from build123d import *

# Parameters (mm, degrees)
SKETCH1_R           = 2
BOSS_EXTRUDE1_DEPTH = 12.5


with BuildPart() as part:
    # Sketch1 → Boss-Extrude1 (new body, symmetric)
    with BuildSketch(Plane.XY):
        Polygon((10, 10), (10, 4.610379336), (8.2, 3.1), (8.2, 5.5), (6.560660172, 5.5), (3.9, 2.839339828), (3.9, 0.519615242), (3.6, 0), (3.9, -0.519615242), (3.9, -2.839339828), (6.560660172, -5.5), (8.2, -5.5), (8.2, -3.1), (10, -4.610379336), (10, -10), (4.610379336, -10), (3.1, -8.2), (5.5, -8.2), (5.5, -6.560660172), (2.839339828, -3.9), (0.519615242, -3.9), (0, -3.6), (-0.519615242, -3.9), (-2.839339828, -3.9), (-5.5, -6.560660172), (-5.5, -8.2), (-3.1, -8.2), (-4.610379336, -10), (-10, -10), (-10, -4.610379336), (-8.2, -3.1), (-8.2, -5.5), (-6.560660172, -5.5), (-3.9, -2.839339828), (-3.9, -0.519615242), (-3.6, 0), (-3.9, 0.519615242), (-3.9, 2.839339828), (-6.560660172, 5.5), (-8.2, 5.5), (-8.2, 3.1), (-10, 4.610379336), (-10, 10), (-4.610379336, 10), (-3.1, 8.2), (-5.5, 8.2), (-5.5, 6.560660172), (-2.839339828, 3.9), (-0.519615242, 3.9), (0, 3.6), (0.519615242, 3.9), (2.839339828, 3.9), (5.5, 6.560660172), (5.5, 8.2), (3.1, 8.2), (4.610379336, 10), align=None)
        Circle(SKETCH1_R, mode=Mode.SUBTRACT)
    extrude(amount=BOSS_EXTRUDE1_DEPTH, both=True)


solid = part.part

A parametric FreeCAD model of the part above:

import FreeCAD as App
import Part
import Sketcher

V = App.Vector
Q = App.Units.Quantity

doc = App.newDocument("Part")
body = doc.addObject("PartDesign::Body", "Body")

# Sketch on XY plane
sketch1 = doc.addObject("Sketcher::SketchObject", "Sketch")
body.addObject(sketch1)
sketch1.AttachmentSupport = (doc.XY_Plane, [""])
sketch1.MapMode = "FlatFace"
sketch1.addGeometry(Part.LineSegment(V(10, 4.6, 0), V(10, 10, 0)), False)
sketch1.addGeometry(Part.LineSegment(V(10, 10, 0), V(4.6, 10, 0)), False)
sketch1.addGeometry(Part.LineSegment(V(4.6, 10, 0), V(3.1, 8.2, 0)), False)
sketch1.addGeometry(Part.LineSegment(V(3.1, 8.2, 0), V(5.5, 8.2, 0)), False)
sketch1.addGeometry(Part.LineSegment(V(5.5, 8.2, 0), V(5.5, 6.6, 0)), False)
sketch1.addGeometry(Part.LineSegment(V(5.5, 6.6, 0), V(2.8, 3.9, 0)), False)
sketch1.addGeometry(Part.LineSegment(V(2.8, 3.9, 0), V(0.5, 3.9, 0)), False)
sketch1.addGeometry(Part.LineSegment(V(0.5, 3.9, 0), V(0, 3.6, 0)), False)
sketch1.addGeometry(Part.LineSegment(V(0, 3.6, 0), V(-0.5, 3.9, 0)), False)
sketch1.addGeometry(Part.LineSegment(V(-0.5, 3.9, 0), V(-2.8, 3.9, 0)), False)
sketch1.addGeometry(Part.LineSegment(V(-2.8, 3.9, 0), V(-5.5, 6.6, 0)), False)
sketch1.addGeometry(Part.LineSegment(V(-5.5, 6.6, 0), V(-5.5, 8.2, 0)), False)
sketch1.addGeometry(Part.LineSegment(V(-5.5, 8.2, 0), V(-3.1, 8.2, 0)), False)
sketch1.addGeometry(Part.LineSegment(V(-3.1, 8.2, 0), V(-4.6, 10, 0)), False)
sketch1.addGeometry(Part.LineSegment(V(-4.6, 10, 0), V(-10, 10, 0)), False)
sketch1.addGeometry(Part.LineSegment(V(-10, 10, 0), V(-10, 4.6, 0)), False)
sketch1.addGeometry(Part.LineSegment(V(-10, 4.6, 0), V(-8.2, 3.1, 0)), False)
sketch1.addGeometry(Part.LineSegment(V(-8.2, 3.1, 0), V(-8.2, 5.5, 0)), False)
sketch1.addGeometry(Part.LineSegment(V(-8.2, 5.5, 0), V(-6.6, 5.5, 0)), False)
sketch1.addGeometry(Part.LineSegment(V(-6.6, 5.5, 0), V(-3.9, 2.8, 0)), False)
sketch1.addGeometry(Part.LineSegment(V(-3.9, 2.8, 0), V(-3.9, 0.5, 0)), False)
sketch1.addGeometry(Part.LineSegment(V(-3.9, 0.5, 0), V(-3.6, 0, 0)), False)
sketch1.addGeometry(Part.LineSegment(V(-3.6, 0, 0), V(-3.9, -0.5, 0)), False)
sketch1.addGeometry(Part.LineSegment(V(-3.9, -0.5, 0), V(-3.9, -2.8, 0)), False)
sketch1.addGeometry(Part.LineSegment(V(-3.9, -2.8, 0), V(-6.6, -5.5, 0)), False)
sketch1.addGeometry(Part.LineSegment(V(-6.6, -5.5, 0), V(-8.2, -5.5, 0)), False)
sketch1.addGeometry(Part.LineSegment(V(-8.2, -5.5, 0), V(-8.2, -3.1, 0)), False)
sketch1.addGeometry(Part.LineSegment(V(-8.2, -3.1, 0), V(-10, -4.6, 0)), False)
sketch1.addGeometry(Part.LineSegment(V(-10, -4.6, 0), V(-10, -10, 0)), False)
sketch1.addGeometry(Part.LineSegment(V(-10, -10, 0), V(-4.6, -10, 0)), False)
sketch1.addGeometry(Part.LineSegment(V(-4.6, -10, 0), V(-3.1, -8.2, 0)), False)
sketch1.addGeometry(Part.LineSegment(V(-3.1, -8.2, 0), V(-5.5, -8.2, 0)), False)
sketch1.addGeometry(Part.LineSegment(V(-5.5, -8.2, 0), V(-5.5, -6.6, 0)), False)
sketch1.addGeometry(Part.LineSegment(V(-5.5, -6.6, 0), V(-2.8, -3.9, 0)), False)
sketch1.addGeometry(Part.LineSegment(V(-2.8, -3.9, 0), V(-0.5, -3.9, 0)), False)
sketch1.addGeometry(Part.LineSegment(V(-0.5, -3.9, 0), V(0, -3.6, 0)), False)
sketch1.addGeometry(Part.LineSegment(V(0, -3.6, 0), V(0.5, -3.9, 0)), False)
sketch1.addGeometry(Part.LineSegment(V(0.5, -3.9, 0), V(2.8, -3.9, 0)), False)
sketch1.addGeometry(Part.LineSegment(V(2.8, -3.9, 0), V(5.5, -6.6, 0)), False)
sketch1.addGeometry(Part.LineSegment(V(5.5, -6.6, 0), V(5.5, -8.2, 0)), False)
sketch1.addGeometry(Part.LineSegment(V(5.5, -8.2, 0), V(3.1, -8.2, 0)), False)
sketch1.addGeometry(Part.LineSegment(V(3.1, -8.2, 0), V(4.6, -10, 0)), False)
sketch1.addGeometry(Part.LineSegment(V(4.6, -10, 0), V(10, -10, 0)), False)
sketch1.addGeometry(Part.LineSegment(V(10, -10, 0), V(10, -4.6, 0)), False)
sketch1.addGeometry(Part.LineSegment(V(10, -4.6, 0), V(8.2, -3.1, 0)), False)
sketch1.addGeometry(Part.LineSegment(V(8.2, -3.1, 0), V(8.2, -5.5, 0)), False)
sketch1.addGeometry(Part.LineSegment(V(8.2, -5.5, 0), V(6.6, -5.5, 0)), False)
sketch1.addGeometry(Part.LineSegment(V(6.6, -5.5, 0), V(3.9, -2.8, 0)), False)
sketch1.addGeometry(Part.LineSegment(V(3.9, -2.8, 0), V(3.9, -0.5, 0)), False)
sketch1.addGeometry(Part.LineSegment(V(3.9, -0.5, 0), V(3.6, 0, 0)), False)
sketch1.addGeometry(Part.LineSegment(V(3.6, 0, 0), V(3.9, 0.5, 0)), False)
sketch1.addGeometry(Part.LineSegment(V(3.9, 0.5, 0), V(3.9, 2.8, 0)), False)
sketch1.addGeometry(Part.LineSegment(V(3.9, 2.8, 0), V(6.6, 5.5, 0)), False)
sketch1.addGeometry(Part.LineSegment(V(6.6, 5.5, 0), V(8.2, 5.5, 0)), False)
sketch1.addGeometry(Part.LineSegment(V(8.2, 5.5, 0), V(8.2, 3.1, 0)), False)
sketch1.addGeometry(Part.LineSegment(V(8.2, 3.1, 0), V(10, 4.6, 0)), False)
sketch1.addGeometry(Part.Circle(V(0, 0, 0), V(0, 0, 1), 2), False)
sketch1.addConstraint(Sketcher.Constraint("Coincident", 0, 2, 1, 1))
sketch1.addConstraint(Sketcher.Constraint("Coincident", 1, 2, 2, 1))
sketch1.addConstraint(Sketcher.Constraint("Coincident", 2, 2, 3, 1))
sketch1.addConstraint(Sketcher.Constraint("Coincident", 3, 2, 4, 1))
sketch1.addConstraint(Sketcher.Constraint("Coincident", 4, 2, 5, 1))
sketch1.addConstraint(Sketcher.Constraint("Coincident", 5, 2, 6, 1))
sketch1.addConstraint(Sketcher.Constraint("Coincident", 6, 2, 7, 1))
sketch1.addConstraint(Sketcher.Constraint("Coincident", 7, 2, 8, 1))
sketch1.addConstraint(Sketcher.Constraint("Coincident", 8, 2, 9, 1))
sketch1.addConstraint(Sketcher.Constraint("Coincident", 9, 2, 10, 1))
sketch1.addConstraint(Sketcher.Constraint("Coincident", 10, 2, 11, 1))
sketch1.addConstraint(Sketcher.Constraint("Coincident", 11, 2, 12, 1))
sketch1.addConstraint(Sketcher.Constraint("Coincident", 12, 2, 13, 1))
sketch1.addConstraint(Sketcher.Constraint("Coincident", 13, 2, 14, 1))
sketch1.addConstraint(Sketcher.Constraint("Coincident", 14, 2, 15, 1))
sketch1.addConstraint(Sketcher.Constraint("Coincident", 15, 2, 16, 1))
sketch1.addConstraint(Sketcher.Constraint("Coincident", 16, 2, 17, 1))
sketch1.addConstraint(Sketcher.Constraint("Coincident", 17, 2, 18, 1))
sketch1.addConstraint(Sketcher.Constraint("Coincident", 18, 2, 19, 1))
sketch1.addConstraint(Sketcher.Constraint("Coincident", 19, 2, 20, 1))
sketch1.addConstraint(Sketcher.Constraint("Coincident", 20, 2, 21, 1))
sketch1.addConstraint(Sketcher.Constraint("Coincident", 21, 2, 22, 1))
sketch1.addConstraint(Sketcher.Constraint("Coincident", 22, 2, 23, 1))
sketch1.addConstraint(Sketcher.Constraint("Coincident", 23, 2, 24, 1))
sketch1.addConstraint(Sketcher.Constraint("Coincident", 24, 2, 25, 1))
sketch1.addConstraint(Sketcher.Constraint("Coincident", 25, 2, 26, 1))
sketch1.addConstraint(Sketcher.Constraint("Coincident", 26, 2, 27, 1))
sketch1.addConstraint(Sketcher.Constraint("Coincident", 27, 2, 28, 1))
sketch1.addConstraint(Sketcher.Constraint("Coincident", 28, 2, 29, 1))
sketch1.addConstraint(Sketcher.Constraint("Coincident", 29, 2, 30, 1))
sketch1.addConstraint(Sketcher.Constraint("Coincident", 30, 2, 31, 1))
sketch1.addConstraint(Sketcher.Constraint("Coincident", 31, 2, 32, 1))
sketch1.addConstraint(Sketcher.Constraint("Coincident", 32, 2, 33, 1))
sketch1.addConstraint(Sketcher.Constraint("Coincident", 33, 2, 34, 1))
sketch1.addConstraint(Sketcher.Constraint("Coincident", 34, 2, 35, 1))
sketch1.addConstraint(Sketcher.Constraint("Coincident", 35, 2, 36, 1))
sketch1.addConstraint(Sketcher.Constraint("Coincident", 36, 2, 37, 1))
sketch1.addConstraint(Sketcher.Constraint("Coincident", 37, 2, 38, 1))
sketch1.addConstraint(Sketcher.Constraint("Coincident", 38, 2, 39, 1))
sketch1.addConstraint(Sketcher.Constraint("Coincident", 39, 2, 40, 1))
sketch1.addConstraint(Sketcher.Constraint("Coincident", 40, 2, 41, 1))
sketch1.addConstraint(Sketcher.Constraint("Coincident", 41, 2, 42, 1))
sketch1.addConstraint(Sketcher.Constraint("Coincident", 42, 2, 43, 1))
sketch1.addConstraint(Sketcher.Constraint("Coincident", 43, 2, 44, 1))
sketch1.addConstraint(Sketcher.Constraint("Coincident", 44, 2, 45, 1))
sketch1.addConstraint(Sketcher.Constraint("Coincident", 45, 2, 46, 1))
sketch1.addConstraint(Sketcher.Constraint("Coincident", 46, 2, 47, 1))
sketch1.addConstraint(Sketcher.Constraint("Coincident", 47, 2, 48, 1))
sketch1.addConstraint(Sketcher.Constraint("Coincident", 48, 2, 49, 1))
sketch1.addConstraint(Sketcher.Constraint("Coincident", 49, 2, 50, 1))
sketch1.addConstraint(Sketcher.Constraint("Coincident", 50, 2, 51, 1))
sketch1.addConstraint(Sketcher.Constraint("Coincident", 51, 2, 52, 1))
sketch1.addConstraint(Sketcher.Constraint("Coincident", 52, 2, 53, 1))
sketch1.addConstraint(Sketcher.Constraint("Coincident", 53, 2, 54, 1))
sketch1.addConstraint(Sketcher.Constraint("Coincident", 54, 2, 55, 1))
sketch1.addConstraint(Sketcher.Constraint("Coincident", 55, 2, 0, 1))
sketch1.addConstraint(Sketcher.Constraint("Vertical", 0))
sketch1.addConstraint(Sketcher.Constraint("Horizontal", 1))
sketch1.addConstraint(Sketcher.Constraint("Horizontal", 3))
sketch1.addConstraint(Sketcher.Constraint("Vertical", 4))
sketch1.addConstraint(Sketcher.Constraint("Horizontal", 6))
sketch1.addConstraint(Sketcher.Constraint("Horizontal", 9))
sketch1.addConstraint(Sketcher.Constraint("Vertical", 11))
sketch1.addConstraint(Sketcher.Constraint("Horizontal", 12))
sketch1.addConstraint(Sketcher.Constraint("Horizontal", 14))
sketch1.addConstraint(Sketcher.Constraint("Vertical", 15))
sketch1.addConstraint(Sketcher.Constraint("Vertical", 17))
sketch1.addConstraint(Sketcher.Constraint("Horizontal", 18))
sketch1.addConstraint(Sketcher.Constraint("Vertical", 20))
sketch1.addConstraint(Sketcher.Constraint("Vertical", 23))
sketch1.addConstraint(Sketcher.Constraint("Horizontal", 25))
sketch1.addConstraint(Sketcher.Constraint("Vertical", 26))
sketch1.addConstraint(Sketcher.Constraint("Vertical", 28))
sketch1.addConstraint(Sketcher.Constraint("Horizontal", 29))
sketch1.addConstraint(Sketcher.Constraint("Horizontal", 31))
sketch1.addConstraint(Sketcher.Constraint("Vertical", 32))
sketch1.addConstraint(Sketcher.Constraint("Horizontal", 34))
sketch1.addConstraint(Sketcher.Constraint("Horizontal", 37))
sketch1.addConstraint(Sketcher.Constraint("Vertical", 39))
sketch1.addConstraint(Sketcher.Constraint("Horizontal", 40))
sketch1.addConstraint(Sketcher.Constraint("Horizontal", 42))
sketch1.addConstraint(Sketcher.Constraint("Vertical", 43))
sketch1.addConstraint(Sketcher.Constraint("Vertical", 45))
sketch1.addConstraint(Sketcher.Constraint("Horizontal", 46))
sketch1.addConstraint(Sketcher.Constraint("Vertical", 48))
sketch1.addConstraint(Sketcher.Constraint("Vertical", 51))
sketch1.addConstraint(Sketcher.Constraint("Horizontal", 53))
sketch1.addConstraint(Sketcher.Constraint("Vertical", 54))
sketch1.addConstraint(Sketcher.Constraint("Coincident", 56, 3, -1, 1))
sketch1.addConstraint(Sketcher.Constraint("Symmetric", 0, 2, 28, 2, -1, 1))
sketch1.addConstraint(Sketcher.Constraint("Symmetric", 2, 2, 30, 2, -1, 1))
sketch1.addConstraint(Sketcher.Constraint("Symmetric", 4, 2, 32, 2, -1, 1))
sketch1.addConstraint(Sketcher.Constraint("Symmetric", 5, 2, 33, 2, -1, 1))
sketch1.addConstraint(Sketcher.Constraint("Symmetric", 7, 2, 35, 2, -1, 1))
sketch1.addConstraint(Sketcher.Constraint("Symmetric", 8, 2, 36, 2, -1, 1))
sketch1.addConstraint(Sketcher.Constraint("Symmetric", 10, 2, 38, 2, -1, 1))
sketch1.addConstraint(Sketcher.Constraint("Symmetric", 12, 2, 40, 2, -1, 1))
sketch1.addConstraint(Sketcher.Constraint("Symmetric", 13, 2, 41, 2, -1, 1))
sketch1.addConstraint(Sketcher.Constraint("Symmetric", 15, 2, 43, 2, -1, 1))
sketch1.addConstraint(Sketcher.Constraint("Symmetric", 16, 2, 44, 2, -1, 1))
sketch1.addConstraint(Sketcher.Constraint("Symmetric", 18, 2, 46, 2, -1, 1))
sketch1.addConstraint(Sketcher.Constraint("Symmetric", 19, 2, 47, 2, -1, 1))
sketch1.addConstraint(Sketcher.Constraint("Symmetric", 21, 2, 49, 2, -1, 1))
sketch1.addConstraint(Sketcher.Constraint("Symmetric", 22, 2, 50, 2, -1, 1))
sketch1.addConstraint(Sketcher.Constraint("Symmetric", 24, 2, 52, 2, -1, 1))
sketch1.addConstraint(Sketcher.Constraint("Symmetric", 26, 2, 54, 2, -1, 1))
sketch1.addConstraint(Sketcher.Constraint("Symmetric", 6, 2, 8, 2, -2))
sketch1.addConstraint(Sketcher.Constraint("Symmetric", 4, 2, 10, 2, -2))
sketch1.addConstraint(Sketcher.Constraint("Symmetric", 2, 2, 12, 2, -2))
sketch1.addConstraint(Sketcher.Constraint("Symmetric", 1, 2, 13, 2, -2))
sketch1.addConstraint(Sketcher.Constraint("Symmetric", 27, 2, 43, 2, -2))
sketch1.addConstraint(Sketcher.Constraint("Symmetric", 26, 2, 44, 2, -2))
sketch1.addConstraint(Sketcher.Constraint("Symmetric", 24, 2, 46, 2, -2))
sketch1.addConstraint(Sketcher.Constraint("Symmetric", 23, 2, 47, 2, -2))
sketch1.addConstraint(Sketcher.Constraint("PointOnObject", 7, 2, -2))
sketch1.addConstraint(Sketcher.Constraint("PointOnObject", 21, 2, -1))
sketch1.addConstraint(Sketcher.Constraint("Perpendicular", 5, 10))
sketch1.addConstraint(Sketcher.Constraint("Perpendicular", 2, 16))
sketch1.addConstraint(Sketcher.Constraint("Parallel", 10, 19))
sketch1.addConstraint(Sketcher.Constraint("Perpendicular", 7, 21))
sketch1.addConstraint(Sketcher.Constraint("Perpendicular", 8, 22))
sketch1.addConstraint(Sketcher.Constraint("Perpendicular", 19, 24))
sketch1.addConstraint(Sketcher.Constraint("Perpendicular", 16, 30))
sketch1.addConstraint(Sketcher.Constraint("Perpendicular", 21, 35))
sketch1.addConstraint(Sketcher.Constraint("Perpendicular", 33, 38))
sketch1.addConstraint(Sketcher.Constraint("Perpendicular", 35, 49))
sketch1.addConstraint(Sketcher.Constraint("Perpendicular", 47, 52))
sketch1.addConstraint(Sketcher.Constraint("Perpendicular", 41, 55))
sketch1.addConstraint(Sketcher.Constraint("Equal", 42, 0))
sketch1.addConstraint(Sketcher.Constraint("Equal", 53, 4))
sketch1.addConstraint(Sketcher.Constraint("Equal", 40, 17))
sketch1.addConstraint(Sketcher.Constraint("Equal", 37, 20))
sketch1.addConstraint(Sketcher.Constraint("Equal", 13, 16))
sketch1.addConstraint(Sketcher.Constraint("Equal", 10, 19))
sketch1.addConstraint(Sketcher.Constraint("Equal", 8, 21))
sketch1.addConstraint(Sketcher.Constraint("Diameter", 56, Q("4 mm")))
sketch1.addConstraint(Sketcher.Constraint("Angle", 2, Q("-130 deg")))
sketch1.addConstraint(Sketcher.Constraint("Angle", 7, Q("-150 deg")))
sketch1.addConstraint(Sketcher.Constraint("DistanceX", 3, 1, 3, 2, Q("2.4 mm")))
sketch1.addConstraint(Sketcher.Constraint("DistanceX", -1, 1, 0, 2, Q("10 mm")))
sketch1.addConstraint(Sketcher.Constraint("Distance", 7, Q("0.6 mm")))
sketch1.addConstraint(Sketcher.Constraint("DistanceX", -1, 1, 2, 2, Q("3.1 mm")))
sketch1.addConstraint(Sketcher.Constraint("DistanceY", -1, 1, 2, 2, Q("8.2 mm")))
sketch1.addConstraint(Sketcher.Constraint("DistanceY", -1, 1, 5, 2, Q("3.9 mm")))
sketch1.addConstraint(Sketcher.Constraint("DistanceX", 18, 1, 18, 2, Q("1.63934 mm")))
pad1 = doc.addObject("PartDesign::Pad", "Pad")
body.addObject(pad1)
pad1.Profile = sketch1
pad1.Length = 25
pad1.Midplane = True

doc.recompute()
